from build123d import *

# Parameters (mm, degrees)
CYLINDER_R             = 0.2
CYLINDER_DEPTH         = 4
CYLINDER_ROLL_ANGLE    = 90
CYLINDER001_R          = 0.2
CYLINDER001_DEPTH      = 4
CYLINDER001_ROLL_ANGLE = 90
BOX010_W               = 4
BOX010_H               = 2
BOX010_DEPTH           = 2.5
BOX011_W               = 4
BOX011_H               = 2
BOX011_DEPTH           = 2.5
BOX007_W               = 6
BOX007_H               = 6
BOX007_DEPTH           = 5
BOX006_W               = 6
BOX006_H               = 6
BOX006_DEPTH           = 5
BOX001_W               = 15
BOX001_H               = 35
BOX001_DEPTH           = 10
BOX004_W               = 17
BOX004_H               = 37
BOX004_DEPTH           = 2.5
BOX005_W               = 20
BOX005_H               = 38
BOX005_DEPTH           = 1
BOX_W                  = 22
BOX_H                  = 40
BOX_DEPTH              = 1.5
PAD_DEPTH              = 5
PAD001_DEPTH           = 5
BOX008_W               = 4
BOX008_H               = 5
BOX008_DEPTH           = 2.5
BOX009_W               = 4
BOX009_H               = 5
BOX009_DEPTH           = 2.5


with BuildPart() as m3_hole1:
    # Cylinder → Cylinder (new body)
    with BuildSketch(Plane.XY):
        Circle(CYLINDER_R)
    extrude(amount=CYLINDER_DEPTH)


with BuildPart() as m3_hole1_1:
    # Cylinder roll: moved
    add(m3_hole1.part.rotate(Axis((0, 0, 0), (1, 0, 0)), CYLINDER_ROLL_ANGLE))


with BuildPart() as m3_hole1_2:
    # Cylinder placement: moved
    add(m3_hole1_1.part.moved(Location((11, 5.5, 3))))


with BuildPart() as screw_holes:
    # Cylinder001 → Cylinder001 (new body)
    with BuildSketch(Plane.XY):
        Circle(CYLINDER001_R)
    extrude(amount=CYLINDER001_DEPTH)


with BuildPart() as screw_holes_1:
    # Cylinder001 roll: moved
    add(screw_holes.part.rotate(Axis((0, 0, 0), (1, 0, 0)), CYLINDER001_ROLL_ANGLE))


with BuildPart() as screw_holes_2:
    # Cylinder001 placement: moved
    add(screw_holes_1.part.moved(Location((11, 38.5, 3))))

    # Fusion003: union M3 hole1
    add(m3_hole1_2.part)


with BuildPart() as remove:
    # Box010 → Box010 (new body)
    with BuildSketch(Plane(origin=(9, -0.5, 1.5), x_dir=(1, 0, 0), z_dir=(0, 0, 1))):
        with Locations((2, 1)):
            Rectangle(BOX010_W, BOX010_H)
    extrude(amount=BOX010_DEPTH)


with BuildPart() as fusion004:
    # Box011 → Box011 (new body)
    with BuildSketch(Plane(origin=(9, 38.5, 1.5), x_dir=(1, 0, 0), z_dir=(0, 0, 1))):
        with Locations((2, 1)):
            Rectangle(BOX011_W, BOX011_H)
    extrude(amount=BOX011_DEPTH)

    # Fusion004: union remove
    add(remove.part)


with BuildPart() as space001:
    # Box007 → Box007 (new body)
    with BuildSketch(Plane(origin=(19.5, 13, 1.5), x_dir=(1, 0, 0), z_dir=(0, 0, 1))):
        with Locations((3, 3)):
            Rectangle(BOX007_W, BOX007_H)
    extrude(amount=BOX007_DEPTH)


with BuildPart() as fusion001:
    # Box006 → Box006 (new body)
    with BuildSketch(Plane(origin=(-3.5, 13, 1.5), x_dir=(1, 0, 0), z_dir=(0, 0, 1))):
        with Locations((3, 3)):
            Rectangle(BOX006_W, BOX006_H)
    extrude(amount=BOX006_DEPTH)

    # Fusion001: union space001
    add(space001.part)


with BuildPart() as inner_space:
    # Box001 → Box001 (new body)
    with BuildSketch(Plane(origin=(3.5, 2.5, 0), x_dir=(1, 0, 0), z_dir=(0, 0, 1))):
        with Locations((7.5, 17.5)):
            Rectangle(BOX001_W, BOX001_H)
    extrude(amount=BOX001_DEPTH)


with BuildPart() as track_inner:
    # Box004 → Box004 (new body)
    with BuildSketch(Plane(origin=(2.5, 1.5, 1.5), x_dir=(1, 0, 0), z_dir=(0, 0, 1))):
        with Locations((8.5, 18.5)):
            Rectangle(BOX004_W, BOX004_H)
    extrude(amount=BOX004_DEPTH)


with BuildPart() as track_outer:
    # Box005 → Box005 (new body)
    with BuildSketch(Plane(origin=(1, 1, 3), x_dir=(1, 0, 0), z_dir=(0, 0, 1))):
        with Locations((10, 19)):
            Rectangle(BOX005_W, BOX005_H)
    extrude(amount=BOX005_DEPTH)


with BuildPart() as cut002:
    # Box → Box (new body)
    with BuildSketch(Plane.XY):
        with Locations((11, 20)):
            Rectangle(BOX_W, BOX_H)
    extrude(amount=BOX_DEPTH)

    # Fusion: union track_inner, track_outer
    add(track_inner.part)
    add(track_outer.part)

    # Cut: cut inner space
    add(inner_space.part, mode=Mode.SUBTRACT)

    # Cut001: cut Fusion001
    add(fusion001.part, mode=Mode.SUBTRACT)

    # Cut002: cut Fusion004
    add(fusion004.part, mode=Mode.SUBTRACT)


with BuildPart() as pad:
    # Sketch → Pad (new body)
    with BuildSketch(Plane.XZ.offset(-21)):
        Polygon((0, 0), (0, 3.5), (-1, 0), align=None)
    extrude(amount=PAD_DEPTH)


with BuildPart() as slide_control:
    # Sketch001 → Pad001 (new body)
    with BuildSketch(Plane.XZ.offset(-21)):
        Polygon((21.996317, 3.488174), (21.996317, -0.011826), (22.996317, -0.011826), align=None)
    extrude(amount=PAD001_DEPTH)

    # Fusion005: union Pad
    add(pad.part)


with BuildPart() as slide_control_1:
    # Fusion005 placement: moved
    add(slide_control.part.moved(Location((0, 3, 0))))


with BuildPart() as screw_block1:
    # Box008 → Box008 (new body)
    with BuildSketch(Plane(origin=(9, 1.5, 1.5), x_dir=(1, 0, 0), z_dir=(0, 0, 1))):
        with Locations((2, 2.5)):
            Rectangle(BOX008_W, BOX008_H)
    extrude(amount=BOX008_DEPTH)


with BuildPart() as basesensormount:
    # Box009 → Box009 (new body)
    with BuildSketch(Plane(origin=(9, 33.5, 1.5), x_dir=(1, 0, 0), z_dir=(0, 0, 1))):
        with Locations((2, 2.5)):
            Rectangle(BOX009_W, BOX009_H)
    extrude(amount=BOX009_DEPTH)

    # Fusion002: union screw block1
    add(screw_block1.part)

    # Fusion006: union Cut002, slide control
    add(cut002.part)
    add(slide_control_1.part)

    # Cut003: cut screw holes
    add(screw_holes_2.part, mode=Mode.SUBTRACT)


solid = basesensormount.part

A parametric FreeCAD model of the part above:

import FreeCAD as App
import Part
import Sketcher

V = App.Vector
Q = App.Units.Quantity

doc = App.newDocument("Part")
body = doc.addObject("PartDesign::Body", "Body")

# Sketch on XY plane
sketch1 = doc.addObject("Sketcher::SketchObject", "Sketch")
body.addObject(sketch1)
sketch1.AttachmentSupport = (doc.XY_Plane, [""])
sketch1.MapMode = "FlatFace"
sketch1.addGeometry(Part.Circle(V(0, 0, 0), V(0, 0, 1), 0.2), False)
sketch1.addConstraint([
    Sketcher.Constraint("Coincident", 0, 3, -1, 1),
    Sketcher.Constraint("Diameter", 0, Q("0.4 mm")),
])
pad1 = doc.addObject("PartDesign::Pad", "Pad")
body.addObject(pad1)
pad1.Profile = sketch1
pad1.Length = 4
body2 = doc.addObject("PartDesign::Body", "Body001")
doc.recompute()

body.Placement = App.Placement(V(0, 0, 0), App.Rotation(V(1, 0, 0), 90))
boolean = doc.addObject("PartDesign::Boolean", "Boolean")
body2.addObject(boolean)
boolean.Type = "Fuse"
boolean.addObjects([body])
body3 = doc.addObject("PartDesign::Body", "Body002")
doc.recompute()

body2.Placement = App.Placement(V(11, 5.5, 3), App.Rotation(V(0, 0, 1), 0))
boolean2 = doc.addObject("PartDesign::Boolean", "Boolean001")
body3.addObject(boolean2)
boolean2.Type = "Fuse"
boolean2.addObjects([body2])
body4 = doc.addObject("PartDesign::Body", "Body003")

# Sketch on XY plane
sketch2 = doc.addObject("Sketcher::SketchObject", "Sketch001")
body4.addObject(sketch2)
sketch2.AttachmentSupport = (doc.getObject("XY_Plane003"), [""])
sketch2.MapMode = "FlatFace"
sketch2.addGeometry(Part.Circle(V(0, 0, 0), V(0, 0, 1), 0.2), False)
sketch2.addConstraint([
    Sketcher.Constraint("Coincident", 0, 3, -1, 1),
    Sketcher.Constraint("Diameter", 0, Q("0.4 mm")),
])
pad2 = doc.addObject("PartDesign::Pad", "Pad001")
body4.addObject(pad2)
pad2.Profile = sketch2
pad2.Length = 4
body5 = doc.addObject("PartDesign::Body", "Body004")
doc.recompute()

body4.Placement = App.Placement(V(0, 0, 0), App.Rotation(V(1, 0, 0), 90))
boolean3 = doc.addObject("PartDesign::Boolean", "Boolean002")
body5.addObject(boolean3)
boolean3.Type = "Fuse"
boolean3.addObjects([body4])
body6 = doc.addObject("PartDesign::Body", "Body005")
body6.AllowCompound = True
doc.recompute()

body5.Placement = App.Placement(V(11, 38.5, 3), App.Rotation(V(0, 0, 1), 0))
boolean4 = doc.addObject("PartDesign::Boolean", "Boolean003")
body6.addObject(boolean4)
boolean4.Type = "Fuse"
boolean4.addObjects([body5])
doc.recompute()

boolean5 = doc.addObject("PartDesign::Boolean", "Boolean004")
body6.addObject(boolean5)
boolean5.Type = "Fuse"
boolean5.addObjects([body3])
body7 = doc.addObject("PartDesign::Body", "Body006")

# Sketch on XY plane
sketch3 = doc.addObject("Sketcher::SketchObject", "Sketch002")
body7.addObject(sketch3)
sketch3.AttachmentSupport = (doc.getObject("XY_Plane006"), [""])
sketch3.MapMode = "FlatFace"
sketch3.AttachmentOffset = App.Placement(V(0, 0, 1.5), App.Rotation())
sketch3.addGeometry([
    Part.LineSegment(V(9, 1.5, 0), V(9, -0.5, 0)),
    Part.LineSegment(V(9, -0.5, 0), V(13, -0.5, 0)),
    Part.LineSegment(V(13, -0.5, 0), V(13, 1.5, 0)),
    Part.LineSegment(V(13, 1.5, 0), V(9, 1.5, 0)),
], False)
sketch3.addConstraint([
    Sketcher.Constraint("Coincident", 0, 2, 1, 1),
    Sketcher.Constraint("Coincident", 1, 2, 2, 1),
    Sketcher.Constraint("Coincident", 2, 2, 3, 1),
    Sketcher.Constraint("Coincident", 3, 2, 0, 1),
    Sketcher.Constraint("Vertical", 0),
    Sketcher.Constraint("Horizontal", 1),
    Sketcher.Constraint("Vertical", 2),
    Sketcher.Constraint("Horizontal", 3),
    Sketcher.Constraint("DistanceX", 1, 1, 1, 2, Q("4 mm")),
    Sketcher.Constraint("DistanceY", 0, 2, 0, 1, Q("2 mm")),
    Sketcher.Constraint("DistanceX", -1, 1, 0, 2, Q("9 mm")),
    Sketcher.Constraint("DistanceY", 0, 2, -1, 1, Q("0.5 mm")),
])
pad3 = doc.addObject("PartDesign::Pad", "Pad002")
body7.addObject(pad3)
pad3.Profile = sketch3
pad3.Length = 2.5
body8 = doc.addObject("PartDesign::Body", "Body007")
body8.AllowCompound = True

# Sketch on XY plane
sketch4 = doc.addObject("Sketcher::SketchObject", "Sketch003")
body8.addObject(sketch4)
sketch4.AttachmentSupport = (doc.getObject("XY_Plane007"), [""])
sketch4.MapMode = "FlatFace"
sketch4.AttachmentOffset = App.Placement(V(0, 0, 1.5), App.Rotation())
sketch4.addGeometry([
    Part.LineSegment(V(9, 40.5, 0), V(9, 38.5, 0)),
    Part.LineSegment(V(9, 38.5, 0), V(13, 38.5, 0)),
    Part.LineSegment(V(13, 38.5, 0), V(13, 40.5, 0)),
    Part.LineSegment(V(13, 40.5, 0), V(9, 40.5, 0)),
], False)
sketch4.addConstraint([
    Sketcher.Constraint("Coincident", 0, 2, 1, 1),
    Sketcher.Constraint("Coincident", 1, 2, 2, 1),
    Sketcher.Constraint("Coincident", 2, 2, 3, 1),
    Sketcher.Constraint("Coincident", 3, 2, 0, 1),
    Sketcher.Constraint("Vertical", 0),
    Sketcher.Constraint("Horizontal", 1),
    Sketcher.Constraint("Vertical", 2),
    Sketcher.Constraint("Horizontal", 3),
    Sketcher.Constraint("DistanceX", 1, 1, 1, 2, Q("4 mm")),
    Sketcher.Constraint("DistanceY", 0, 2, 0, 1, Q("2 mm")),
    Sketcher.Constraint("DistanceX", -1, 1, 0, 2, Q("9 mm")),
    Sketcher.Constraint("DistanceY", -1, 1, 0, 2, Q("38.5 mm")),
])
pad4 = doc.addObject("PartDesign::Pad", "Pad003")
body8.addObject(pad4)
pad4.Profile = sketch4
pad4.Length = 2.5
doc.recompute()

boolean6 = doc.addObject("PartDesign::Boolean", "Boolean005")
body8.addObject(boolean6)
boolean6.Type = "Fuse"
boolean6.addObjects([body7])
body9 = doc.addObject("PartDesign::Body", "Body008")

# Sketch on XY plane
sketch5 = doc.addObject("Sketcher::SketchObject", "Sketch004")
body9.addObject(sketch5)
sketch5.AttachmentSupport = (doc.getObject("XY_Plane008"), [""])
sketch5.MapMode = "FlatFace"
sketch5.AttachmentOffset = App.Placement(V(0, 0, 1.5), App.Rotation())
sketch5.addGeometry([
    Part.LineSegment(V(20, 19, 0), V(20, 13, 0)),
    Part.LineSegment(V(20, 13, 0), V(26, 13, 0)),
    Part.LineSegment(V(26, 13, 0), V(26, 19, 0)),
    Part.LineSegment(V(26, 19, 0), V(20, 19, 0)),
], False)
sketch5.addConstraint([
    Sketcher.Constraint("Coincident", 0, 2, 1, 1),
    Sketcher.Constraint("Coincident", 1, 2, 2, 1),
    Sketcher.Constraint("Coincident", 2, 2, 3, 1),
    Sketcher.Constraint("Coincident", 3, 2, 0, 1),
    Sketcher.Constraint("Vertical", 0),
    Sketcher.Constraint("Horizontal", 1),
    Sketcher.Constraint("Vertical", 2),
    Sketcher.Constraint("Horizontal", 3),
    Sketcher.Constraint("Equal", 3, 0),
    Sketcher.Constraint("DistanceX", 1, 1, 1, 2, Q("6 mm")),
    Sketcher.Constraint("DistanceY", -1, 1, 0, 2, Q("13 mm")),
    Sketcher.Constraint("DistanceX", -1, 1, 0, 2, Q("19.5 mm")),
])
pad5 = doc.addObject("PartDesign::Pad", "Pad004")
body9.addObject(pad5)
pad5.Profile = sketch5
pad5.Length = 5
body10 = doc.addObject("PartDesign::Body", "Body009")
body10.AllowCompound = True

# Sketch on XY plane
sketch6 = doc.addObject("Sketcher::SketchObject", "Sketch005")
body10.addObject(sketch6)
sketch6.AttachmentSupport = (doc.getObject("XY_Plane009"), [""])
sketch6.MapMode = "FlatFace"
sketch6.AttachmentOffset = App.Placement(V(0, 0, 1.5), App.Rotation())
sketch6.addGeometry([
    Part.LineSegment(V(-4, 19, 0), V(-4, 13, 0)),
    Part.LineSegment(V(-4, 13, 0), V(2, 13, 0)),
    Part.LineSegment(V(2, 13, 0), V(2, 19, 0)),
    Part.LineSegment(V(2, 19, 0), V(-4, 19, 0)),
], False)
sketch6.addConstraint([
    Sketcher.Constraint("Coincident", 0, 2, 1, 1),
    Sketcher.Constraint("Coincident", 1, 2, 2, 1),
    Sketcher.Constraint("Coincident", 2, 2, 3, 1),
    Sketcher.Constraint("Coincident", 3, 2, 0, 1),
    Sketcher.Constraint("Vertical", 0),
    Sketcher.Constraint("Horizontal", 1),
    Sketcher.Constraint("Vertical", 2),
    Sketcher.Constraint("Horizontal", 3),
    Sketcher.Constraint("Equal", 3, 0),
    Sketcher.Constraint("DistanceX", 1, 1, 1, 2, Q("6 mm")),
    Sketcher.Constraint("DistanceY", -1, 1, 0, 2, Q("13 mm")),
    Sketcher.Constraint("DistanceX", 0, 2, -1, 1, Q("3.5 mm")),
])
pad6 = doc.addObject("PartDesign::Pad", "Pad005")
body10.addObject(pad6)
pad6.Profile = sketch6
pad6.Length = 5
doc.recompute()

boolean7 = doc.addObject("PartDesign::Boolean", "Boolean006")
body10.addObject(boolean7)
boolean7.Type = "Fuse"
boolean7.addObjects([body9])
body11 = doc.addObject("PartDesign::Body", "Body010")

# Sketch on XY plane
sketch7 = doc.addObject("Sketcher::SketchObject", "Sketch006")
body11.addObject(sketch7)
sketch7.AttachmentSupport = (doc.getObject("XY_Plane010"), [""])
sketch7.MapMode = "FlatFace"
sketch7.addGeometry([
    Part.LineSegment(V(4, 38, 0), V(4, 2, 0)),
    Part.LineSegment(V(4, 2, 0), V(18, 2, 0)),
    Part.LineSegment(V(18, 2, 0), V(18, 38, 0)),
    Part.LineSegment(V(18, 38, 0), V(4, 38, 0)),
], False)
sketch7.addConstraint([
    Sketcher.Constraint("Coincident", 0, 2, 1, 1),
    Sketcher.Constraint("Coincident", 1, 2, 2, 1),
    Sketcher.Constraint("Coincident", 2, 2, 3, 1),
    Sketcher.Constraint("Coincident", 3, 2, 0, 1),
    Sketcher.Constraint("Vertical", 0),
    Sketcher.Constraint("Horizontal", 1),
    Sketcher.Constraint("Vertical", 2),
    Sketcher.Constraint("Horizontal", 3),
    Sketcher.Constraint("DistanceX", 1, 1, 1, 2, Q("15 mm")),
    Sketcher.Constraint("DistanceY", 0, 2, 0, 1, Q("35 mm")),
    Sketcher.Constraint("DistanceX", -1, 1, 0, 2, Q("3.5 mm")),
    Sketcher.Constraint("DistanceY", -1, 1, 0, 2, Q("2.5 mm")),
])
pad7 = doc.addObject("PartDesign::Pad", "Pad006")
body11.addObject(pad7)
pad7.Profile = sketch7
pad7.Length = 10
body12 = doc.addObject("PartDesign::Body", "Body011")

# Sketch on XY plane
sketch8 = doc.addObject("Sketcher::SketchObject", "Sketch007")
body12.addObject(sketch8)
sketch8.AttachmentSupport = (doc.getObject("XY_Plane011"), [""])
sketch8.MapMode = "FlatFace"
sketch8.AttachmentOffset = App.Placement(V(0, 0, 1.5), App.Rotation())
sketch8.addGeometry([
    Part.LineSegment(V(2, 38, 0), V(2, 2, 0)),
    Part.LineSegment(V(2, 2, 0), V(20, 2, 0)),
    Part.LineSegment(V(20, 2, 0), V(20, 38, 0)),
    Part.LineSegment(V(20, 38, 0), V(2, 38, 0)),
], False)
sketch8.addConstraint([
    Sketcher.Constraint("Coincident", 0, 2, 1, 1),
    Sketcher.Constraint("Coincident", 1, 2, 2, 1),
    Sketcher.Constraint("Coincident", 2, 2, 3, 1),
    Sketcher.Constraint("Coincident", 3, 2, 0, 1),
    Sketcher.Constraint("Vertical", 0),
    Sketcher.Constraint("Horizontal", 1),
    Sketcher.Constraint("Vertical", 2),
    Sketcher.Constraint("Horizontal", 3),
    Sketcher.Constraint("DistanceX", 1, 1, 1, 2, Q("17 mm")),
    Sketcher.Constraint("DistanceY", 0, 2, 0, 1, Q("37 mm")),
    Sketcher.Constraint("DistanceX", -1, 1, 0, 2, Q("2.5 mm")),
    Sketcher.Constraint("DistanceY", -1, 1, 0, 2, Q("1.5 mm")),
])
pad8 = doc.addObject("PartDesign::Pad", "Pad007")
body12.addObject(pad8)
pad8.Profile = sketch8
pad8.Length = 2.5
body13 = doc.addObject("PartDesign::Body", "Body012")

# Sketch on XY plane
sketch9 = doc.addObject("Sketcher::SketchObject", "Sketch008")
body13.addObject(sketch9)
sketch9.AttachmentSupport = (doc.getObject("XY_Plane012"), [""])
sketch9.MapMode = "FlatFace"
sketch9.AttachmentOffset = App.Placement(V(0, 0, 3), App.Rotation())
sketch9.addGeometry([
    Part.LineSegment(V(1, 39, 0), V(1, 1, 0)),
    Part.LineSegment(V(1, 1, 0), V(21, 1, 0)),
    Part.LineSegment(V(21, 1, 0), V(21, 39, 0)),
    Part.LineSegment(V(21, 39, 0), V(1, 39, 0)),
], False)
sketch9.addConstraint([
    Sketcher.Constraint("Coincident", 0, 2, 1, 1),
    Sketcher.Constraint("Coincident", 1, 2, 2, 1),
    Sketcher.Constraint("Coincident", 2, 2, 3, 1),
    Sketcher.Constraint("Coincident", 3, 2, 0, 1),
    Sketcher.Constraint("Vertical", 0),
    Sketcher.Constraint("Horizontal", 1),
    Sketcher.Constraint("Vertical", 2),
    Sketcher.Constraint("Horizontal", 3),
    Sketcher.Constraint("DistanceX", 1, 1, 1, 2, Q("20 mm")),
    Sketcher.Constraint("DistanceY", 0, 2, 0, 1, Q("38 mm")),
    Sketcher.Constraint("DistanceX", -1, 1, 0, 2, Q("1 mm")),
    Sketcher.Constraint("DistanceY", -1, 1, 0, 2, Q("1 mm")),
])
pad9 = doc.addObject("PartDesign::Pad", "Pad008")
body13.addObject(pad9)
pad9.Profile = sketch9
pad9.Length = 1
body14 = doc.addObject("PartDesign::Body", "Body013")

# Sketch on XY plane
sketch10 = doc.addObject("Sketcher::SketchObject", "Sketch009")
body14.addObject(sketch10)
sketch10.AttachmentSupport = (doc.getObject("XY_Plane013"), [""])
sketch10.MapMode = "FlatFace"
sketch10.addGeometry([
    Part.LineSegment(V(0, 40, 0), V(0, 0, 0)),
    Part.LineSegment(V(0, 0, 0), V(22, 0, 0)),
    Part.LineSegment(V(22, 0, 0), V(22, 40, 0)),
    Part.LineSegment(V(22, 40, 0), V(0, 40, 0)),
], False)
sketch10.addConstraint([
    Sketcher.Constraint("Coincident", 0, 2, 1, 1),
    Sketcher.Constraint("Coincident", 1, 2, 2, 1),
    Sketcher.Constraint("Coincident", 2, 2, 3, 1),
    Sketcher.Constraint("Coincident", 3, 2, 0, 1),
    Sketcher.Constraint("Vertical", 0),
    Sketcher.Constraint("Horizontal", 1),
    Sketcher.Constraint("Vertical", 2),
    Sketcher.Constraint("Horizontal", 3),
    Sketcher.Constraint("Coincident", 0, 2, -1, 1),
    Sketcher.Constraint("DistanceX", 1, 1, 1, 2, Q("22 mm")),
    Sketcher.Constraint("DistanceY", 0, 2, 0, 1, Q("40 mm")),
])
pad10 = doc.addObject("PartDesign::Pad", "Pad009")
body14.addObject(pad10)
pad10.Profile = sketch10
pad10.Length = 1.5
doc.recompute()

boolean8 = doc.addObject("PartDesign::Boolean", "Boolean007")
body14.addObject(boolean8)
boolean8.Type = "Fuse"
boolean8.addObjects([body12])
doc.recompute()

boolean9 = doc.addObject("PartDesign::Boolean", "Boolean008")
body14.addObject(boolean9)
boolean9.Type = "Fuse"
boolean9.addObjects([body13])
doc.recompute()

boolean10 = doc.addObject("PartDesign::Boolean", "Boolean009")
body14.addObject(boolean10)
boolean10.Type = "Cut"
boolean10.addObjects([body11])
doc.recompute()

boolean11 = doc.addObject("PartDesign::Boolean", "Boolean010")
body14.addObject(boolean11)
boolean11.Type = "Cut"
boolean11.addObjects([body10])
doc.recompute()

boolean12 = doc.addObject("PartDesign::Boolean", "Boolean011")
body14.addObject(boolean12)
boolean12.Type = "Cut"
boolean12.addObjects([body8])
body15 = doc.addObject("PartDesign::Body", "Body014")

# Sketch on XZ plane
sketch11 = doc.addObject("Sketcher::SketchObject", "Sketch010")
body15.addObject(sketch11)
sketch11.AttachmentSupport = (doc.getObject("XZ_Plane014"), [""])
sketch11.MapMode = "FlatFace"
sketch11.AttachmentOffset = App.Placement(V(0, 0, -21), App.Rotation())
sketch11.addGeometry([
    Part.LineSegment(V(0, 0, 0), V(0, 3.5, 0)),
    Part.LineSegment(V(0, 3.5, 0), V(-1, 0, 0)),
    Part.LineSegment(V(-1, 0, 0), V(0, 0, 0)),
], False)
sketch11.addConstraint([
    Sketcher.Constraint("Coincident", 0, 2, 1, 1),
    Sketcher.Constraint("Coincident", 1, 2, 2, 1),
    Sketcher.Constraint("Coincident", 2, 2, 0, 1),
    Sketcher.Constraint("Vertical", 0),
    Sketcher.Constraint("Horizontal", 2),
    Sketcher.Constraint("Coincident", 2, 2, -1, 1),
    Sketcher.Constraint("DistanceX", 2, 1, 2, 2, Q("1 mm")),
    Sketcher.Constraint("DistanceY", 0, 1, 0, 2, Q("3.5 mm")),
])
pad11 = doc.addObject("PartDesign::Pad", "Pad010")
body15.addObject(pad11)
pad11.Profile = sketch11
pad11.Length = 5
body16 = doc.addObject("PartDesign::Body", "Body015")
body16.AllowCompound = True

# Sketch on XZ plane
sketch12 = doc.addObject("Sketcher::SketchObject", "Sketch011")
body16.addObject(sketch12)
sketch12.AttachmentSupport = (doc.getObject("XZ_Plane015"), [""])
sketch12.MapMode = "FlatFace"
sketch12.AttachmentOffset = App.Placement(V(0, 0, -21), App.Rotation())
sketch12.addGeometry([
    Part.LineSegment(V(22, 3.5, 0), V(22, 0, 0)),
    Part.LineSegment(V(22, 0, 0), V(23, 0, 0)),
    Part.LineSegment(V(23, 0, 0), V(22, 3.5, 0)),
], False)
sketch12.addConstraint([
    Sketcher.Constraint("Coincident", 0, 2, 1, 1),
    Sketcher.Constraint("Coincident", 1, 2, 2, 1),
    Sketcher.Constraint("Coincident", 2, 2, 0, 1),
    Sketcher.Constraint("Vertical", 0),
    Sketcher.Constraint("Horizontal", 1),
    Sketcher.Constraint("DistanceX", 1, 1, 1, 2, Q("1 mm")),
    Sketcher.Constraint("DistanceY", 0, 2, 0, 1, Q("3.5 mm")),
    Sketcher.Constraint("DistanceX", -1, 1, 0, 2, Q("21.996317 mm")),
    Sketcher.Constraint("DistanceY", 0, 2, -1, 1, Q("0.011826 mm")),
])
pad12 = doc.addObject("PartDesign::Pad", "Pad011")
body16.addObject(pad12)
pad12.Profile = sketch12
pad12.Length = 5
doc.recompute()

boolean13 = doc.addObject("PartDesign::Boolean", "Boolean012")
body16.addObject(boolean13)
boolean13.Type = "Fuse"
boolean13.addObjects([body15])
body17 = doc.addObject("PartDesign::Body", "Body016")
body17.AllowCompound = True
doc.recompute()

body16.Placement = App.Placement(V(0, 3, 0), App.Rotation(V(0, 0, 1), 0))
boolean14 = doc.addObject("PartDesign::Boolean", "Boolean013")
body17.addObject(boolean14)
boolean14.Type = "Fuse"
boolean14.addObjects([body16])
body18 = doc.addObject("PartDesign::Body", "Body017")

# Sketch on XY plane
sketch13 = doc.addObject("Sketcher::SketchObject", "Sketch012")
body18.addObject(sketch13)
sketch13.AttachmentSupport = (doc.getObject("XY_Plane017"), [""])
sketch13.MapMode = "FlatFace"
sketch13.AttachmentOffset = App.Placement(V(0, 0, 1.5), App.Rotation())
sketch13.addGeometry([
    Part.LineSegment(V(9, 6.5, 0), V(9, 1.5, 0)),
    Part.LineSegment(V(9, 1.5, 0), V(13, 1.5, 0)),
    Part.LineSegment(V(13, 1.5, 0), V(13, 6.5, 0)),
    Part.LineSegment(V(13, 6.5, 0), V(9, 6.5, 0)),
], False)
sketch13.addConstraint([
    Sketcher.Constraint("Coincident", 0, 2, 1, 1),
    Sketcher.Constraint("Coincident", 1, 2, 2, 1),
    Sketcher.Constraint("Coincident", 2, 2, 3, 1),
    Sketcher.Constraint("Coincident", 3, 2, 0, 1),
    Sketcher.Constraint("Vertical", 0),
    Sketcher.Constraint("Horizontal", 1),
    Sketcher.Constraint("Vertical", 2),
    Sketcher.Constraint("Horizontal", 3),
    Sketcher.Constraint("DistanceX", 1, 1, 1, 2, Q("4 mm")),
    Sketcher.Constraint("DistanceY", 0, 2, 0, 1, Q("5 mm")),
    Sketcher.Constraint("DistanceX", -1, 1, 0, 2, Q("9 mm")),
    Sketcher.Constraint("DistanceY", -1, 1, 0, 2, Q("1.5 mm")),
])
pad13 = doc.addObject("PartDesign::Pad", "Pad012")
body18.addObject(pad13)
pad13.Profile = sketch13
pad13.Length = 2.5
body19 = doc.addObject("PartDesign::Body", "Body018")
body19.AllowCompound = True

# Sketch on XY plane
sketch14 = doc.addObject("Sketcher::SketchObject", "Sketch013")
body19.addObject(sketch14)
sketch14.AttachmentSupport = (doc.getObject("XY_Plane018"), [""])
sketch14.MapMode = "FlatFace"
sketch14.AttachmentOffset = App.Placement(V(0, 0, 1.5), App.Rotation())
sketch14.addGeometry([
    Part.LineSegment(V(9, 38.5, 0), V(9, 33.5, 0)),
    Part.LineSegment(V(9, 33.5, 0), V(13, 33.5, 0)),
    Part.LineSegment(V(13, 33.5, 0), V(13, 38.5, 0)),
    Part.LineSegment(V(13, 38.5, 0), V(9, 38.5, 0)),
], False)
sketch14.addConstraint([
    Sketcher.Constraint("Coincident", 0, 2, 1, 1),
    Sketcher.Constraint("Coincident", 1, 2, 2, 1),
    Sketcher.Constraint("Coincident", 2, 2, 3, 1),
    Sketcher.Constraint("Coincident", 3, 2, 0, 1),
    Sketcher.Constraint("Vertical", 0),
    Sketcher.Constraint("Horizontal", 1),
    Sketcher.Constraint("Vertical", 2),
    Sketcher.Constraint("Horizontal", 3),
    Sketcher.Constraint("DistanceX", 1, 1, 1, 2, Q("4 mm")),
    Sketcher.Constraint("DistanceY", 0, 2, 0, 1, Q("5 mm")),
    Sketcher.Constraint("DistanceX", -1, 1, 0, 2, Q("9 mm")),
    Sketcher.Constraint("DistanceY", -1, 1, 0, 2, Q("33.5 mm")),
])
pad14 = doc.addObject("PartDesign::Pad", "Pad013")
body19.addObject(pad14)
pad14.Profile = sketch14
pad14.Length = 2.5
doc.recompute()

boolean15 = doc.addObject("PartDesign::Boolean", "Boolean014")
body19.addObject(boolean15)
boolean15.Type = "Fuse"
boolean15.addObjects([body18])
doc.recompute()

boolean16 = doc.addObject("PartDesign::Boolean", "Boolean015")
body19.addObject(boolean16)
boolean16.Type = "Fuse"
boolean16.addObjects([body14])
doc.recompute()

boolean17 = doc.addObject("PartDesign::Boolean", "Boolean016")
body19.addObject(boolean17)
boolean17.Type = "Fuse"
boolean17.addObjects([body17])
doc.recompute()

boolean18 = doc.addObject("PartDesign::Boolean", "Boolean017")
body19.addObject(boolean18)
boolean18.Type = "Cut"
boolean18.addObjects([body6])

doc.recompute()
